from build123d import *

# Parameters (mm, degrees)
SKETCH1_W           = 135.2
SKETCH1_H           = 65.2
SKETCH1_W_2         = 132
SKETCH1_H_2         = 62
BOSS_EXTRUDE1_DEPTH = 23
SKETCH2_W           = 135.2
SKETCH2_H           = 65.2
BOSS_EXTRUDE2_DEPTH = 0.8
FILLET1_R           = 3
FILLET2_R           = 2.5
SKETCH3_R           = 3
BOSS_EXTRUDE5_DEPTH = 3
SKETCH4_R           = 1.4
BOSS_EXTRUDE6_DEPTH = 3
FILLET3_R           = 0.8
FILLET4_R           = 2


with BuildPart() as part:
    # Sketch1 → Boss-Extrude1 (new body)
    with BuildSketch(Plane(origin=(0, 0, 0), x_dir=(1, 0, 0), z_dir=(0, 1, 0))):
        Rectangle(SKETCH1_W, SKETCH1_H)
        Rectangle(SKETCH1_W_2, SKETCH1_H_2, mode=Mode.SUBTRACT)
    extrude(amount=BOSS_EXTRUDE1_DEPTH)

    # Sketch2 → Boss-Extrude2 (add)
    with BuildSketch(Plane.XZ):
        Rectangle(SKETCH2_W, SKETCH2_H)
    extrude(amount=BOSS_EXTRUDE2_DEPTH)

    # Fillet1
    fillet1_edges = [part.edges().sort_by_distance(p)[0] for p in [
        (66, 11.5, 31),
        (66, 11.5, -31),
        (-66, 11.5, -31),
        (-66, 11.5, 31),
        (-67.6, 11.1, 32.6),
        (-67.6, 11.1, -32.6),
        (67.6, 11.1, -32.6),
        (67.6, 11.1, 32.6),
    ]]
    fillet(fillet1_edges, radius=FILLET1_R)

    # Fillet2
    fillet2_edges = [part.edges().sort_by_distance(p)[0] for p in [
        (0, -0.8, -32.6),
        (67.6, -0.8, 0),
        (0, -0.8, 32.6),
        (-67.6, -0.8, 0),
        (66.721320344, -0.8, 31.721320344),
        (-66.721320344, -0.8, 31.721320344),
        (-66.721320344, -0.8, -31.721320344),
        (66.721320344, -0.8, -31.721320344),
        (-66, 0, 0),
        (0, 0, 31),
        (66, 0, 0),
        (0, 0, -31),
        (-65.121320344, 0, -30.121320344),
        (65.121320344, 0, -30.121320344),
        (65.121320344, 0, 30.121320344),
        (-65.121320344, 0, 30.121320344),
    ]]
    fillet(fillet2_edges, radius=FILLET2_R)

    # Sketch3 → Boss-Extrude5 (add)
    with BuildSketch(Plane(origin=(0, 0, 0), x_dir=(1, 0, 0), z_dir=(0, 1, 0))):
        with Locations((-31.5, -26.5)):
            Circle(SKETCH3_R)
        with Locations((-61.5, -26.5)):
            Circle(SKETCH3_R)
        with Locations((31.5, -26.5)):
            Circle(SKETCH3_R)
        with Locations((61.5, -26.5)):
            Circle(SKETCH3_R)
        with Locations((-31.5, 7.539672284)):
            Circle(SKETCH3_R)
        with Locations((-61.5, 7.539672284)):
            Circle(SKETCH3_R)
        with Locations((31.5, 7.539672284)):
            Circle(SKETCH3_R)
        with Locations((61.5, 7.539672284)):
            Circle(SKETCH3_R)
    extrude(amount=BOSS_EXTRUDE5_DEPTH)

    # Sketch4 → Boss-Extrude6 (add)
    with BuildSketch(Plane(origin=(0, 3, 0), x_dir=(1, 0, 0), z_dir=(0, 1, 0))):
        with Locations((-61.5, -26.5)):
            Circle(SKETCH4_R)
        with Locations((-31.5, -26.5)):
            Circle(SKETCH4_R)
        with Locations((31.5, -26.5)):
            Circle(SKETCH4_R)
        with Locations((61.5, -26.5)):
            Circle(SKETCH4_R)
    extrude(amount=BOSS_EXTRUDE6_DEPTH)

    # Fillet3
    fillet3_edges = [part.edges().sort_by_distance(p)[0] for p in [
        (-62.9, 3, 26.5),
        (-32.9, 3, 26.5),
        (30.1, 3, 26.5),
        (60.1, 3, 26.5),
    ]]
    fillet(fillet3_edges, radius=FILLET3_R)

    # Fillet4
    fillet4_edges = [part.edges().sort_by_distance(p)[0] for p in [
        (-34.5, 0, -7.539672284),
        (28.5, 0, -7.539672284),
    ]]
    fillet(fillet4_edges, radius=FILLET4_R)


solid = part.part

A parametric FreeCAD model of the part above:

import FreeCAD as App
import Part
import Sketcher
from FreeCAD import Vector


def edges_at(feature, points):
    """Names of the edges that pass closest to the given points."""
    edges = feature.Shape.Edges
    near = lambda p: min(range(len(edges)), key=lambda i: edges[i].distToShape(Part.Vertex(*p))[0])
    return sorted({f"Edge{near(p) + 1}" for p in points})

doc = App.newDocument("Part")
body = doc.addObject("PartDesign::Body", "Body")

# Sketch on XZ plane
sketch1 = doc.addObject("Sketcher::SketchObject", "Sketch")
body.addObject(sketch1)
sketch1.AttachmentSupport = (doc.XZ_Plane, [""])
sketch1.MapMode = "FlatFace"
sketch1.addGeometry([
    Part.LineSegment(Vector(-68, -33, 0), Vector(-68, 33, 0)),  # 0
    Part.LineSegment(Vector(-68, 33, 0), Vector(68, 33, 0)),  # 1
    Part.LineSegment(Vector(68, 33, 0), Vector(68, -33, 0)),  # 2
    Part.LineSegment(Vector(68, -33, 0), Vector(-68, -33, 0)),  # 3
    Part.LineSegment(Vector(66, 31, 0), Vector(-66, 31, 0)),  # 4
    Part.LineSegment(Vector(-66, 31, 0), Vector(-66, -31, 0)),  # 5
    Part.LineSegment(Vector(-66, -31, 0), Vector(66, -31, 0)),  # 6
    Part.LineSegment(Vector(66, -31, 0), Vector(66, 31, 0)),  # 7
], False)
sketch1.addConstraint([
    Sketcher.Constraint("Coincident", 0, 2, 1, 1),
    Sketcher.Constraint("Coincident", 1, 2, 2, 1),
    Sketcher.Constraint("Coincident", 2, 2, 3, 1),
    Sketcher.Constraint("Coincident", 3, 2, 0, 1),
    Sketcher.Constraint("Coincident", 4, 2, 5, 1),
    Sketcher.Constraint("Coincident", 5, 2, 6, 1),
    Sketcher.Constraint("Coincident", 6, 2, 7, 1),
    Sketcher.Constraint("Coincident", 7, 2, 4, 1),
    Sketcher.Constraint("Vertical", 0),
    Sketcher.Constraint("Horizontal", 1),
    Sketcher.Constraint("Vertical", 2),
    Sketcher.Constraint("Horizontal", 3),
    Sketcher.Constraint("Horizontal", 4),
    Sketcher.Constraint("Vertical", 5),
    Sketcher.Constraint("Horizontal", 6),
    Sketcher.Constraint("Vertical", 7),
    Sketcher.Constraint("Symmetric", 0, 2, 2, 2, -1, 1),
    Sketcher.Constraint("Symmetric", 4, 2, 6, 2, -1, 1),
    Sketcher.Constraint("DistanceX", 4, 2, 4, 1, 132.0),
    Sketcher.Constraint("DistanceY", 5, 2, 5, 1, 62.0),
    Sketcher.Constraint("DistanceX", 1, 1, 1, 2, 135.2),
    Sketcher.Constraint("DistanceY", 0, 1, 0, 2, 65.2),
])
pad1 = doc.addObject("PartDesign::Pad", "Pad")
body.addObject(pad1)
pad1.Profile = sketch1
pad1.Length = 23
pad1.Reversed = True

# Sketch on XZ plane
sketch2 = doc.addObject("Sketcher::SketchObject", "Sketch001")
body.addObject(sketch2)
sketch2.AttachmentSupport = (doc.XZ_Plane, [""])
sketch2.MapMode = "FlatFace"
sketch2.addGeometry([
    Part.LineSegment(Vector(-68, 33, 0), Vector(-68, -33, 0)),
    Part.LineSegment(Vector(-68, -33, 0), Vector(68, -33, 0)),
    Part.LineSegment(Vector(68, -33, 0), Vector(68, 33, 0)),
    Part.LineSegment(Vector(68, 33, 0), Vector(-68, 33, 0)),
], False)
sketch2.addConstraint([
    Sketcher.Constraint("Coincident", 0, 2, 1, 1),
    Sketcher.Constraint("Coincident", 1, 2, 2, 1),
    Sketcher.Constraint("Coincident", 2, 2, 3, 1),
    Sketcher.Constraint("Coincident", 3, 2, 0, 1),
    Sketcher.Constraint("Vertical", 0),
    Sketcher.Constraint("Horizontal", 1),
    Sketcher.Constraint("Vertical", 2),
    Sketcher.Constraint("Horizontal", 3),
    Sketcher.Constraint("Symmetric", 0, 2, 2, 2, -1, 1),
    Sketcher.Constraint("DistanceX", 1, 1, 1, 2, 135.2),
    Sketcher.Constraint("DistanceY", 0, 2, 0, 1, 65.2),
])
pad2 = doc.addObject("PartDesign::Pad", "Pad001")
body.addObject(pad2)
pad2.Profile = sketch2
pad2.Length = 0.8
doc.recompute()

fillet = doc.addObject("PartDesign::Fillet", "Fillet")
body.addObject(fillet)
fillet.Base = (pad2, edges_at(pad2, [
    (66, 11.5, 31),
    (66, 11.5, -31),
    (-66, 11.5, -31),
    (-66, 11.5, 31),
    (-67.6, 11.1, 32.6),
    (-67.6, 11.1, -32.6),
    (67.6, 11.1, -32.6),
    (67.6, 11.1, 32.6),
]))
fillet.Radius = 3
doc.recompute()

fillet2 = doc.addObject("PartDesign::Fillet", "Fillet001")
body.addObject(fillet2)
fillet2.Base = (fillet, edges_at(fillet, [
    (0, -0.8, -32.6),
    (67.6, -0.8, 0),
    (0, -0.8, 32.6),
    (-67.6, -0.8, 0),
    (66.721, -0.8, 31.721),
    (-66.721, -0.8, 31.721),
    (-66.721, -0.8, -31.721),
    (66.721, -0.8, -31.721),
    (-66, 0, 0),
    (0, 0, 31),
    (66, 0, 0),
    (0, 0, -31),
    (-65.121, 0, -30.121),
    (65.121, 0, -30.121),
    (65.121, 0, 30.121),
    (-65.121, 0, 30.121),
]))
fillet2.Radius = 2.5

# Sketch on XZ plane
sketch3 = doc.addObject("Sketcher::SketchObject", "Sketch002")
body.addObject(sketch3)
sketch3.AttachmentSupport = (doc.XZ_Plane, [""])
sketch3.MapMode = "FlatFace"
sketch3.addGeometry([
    Part.Circle(Vector(-31.5, 26.5, 0), Vector(0, 0, 1), 3),  # 0
    Part.Circle(Vector(-61.5, 26.5, 0), Vector(0, 0, 1), 3),  # 1
    Part.Circle(Vector(31.5, 26.5, 0), Vector(0, 0, 1), 3),  # 2
    Part.Circle(Vector(61.5, 26.5, 0), Vector(0, 0, 1), 3),  # 3
    Part.Circle(Vector(-31.5, -7.5, 0), Vector(0, 0, 1), 3),  # 4
    Part.Circle(Vector(-61.5, -7.5, 0), Vector(0, 0, 1), 3),  # 5
    Part.Circle(Vector(31.5, -7.5, 0), Vector(0, 0, 1), 3),  # 6
    Part.Circle(Vector(61.5, -7.5, 0), Vector(0, 0, 1), 3),  # 7
], False)
sketch3.addConstraint([
    Sketcher.Constraint("Equal", 0, 1),
    Sketcher.Constraint("Equal", 1, 2),
    Sketcher.Constraint("Equal", 2, 3),
    Sketcher.Constraint("Equal", 3, 4),
    Sketcher.Constraint("Equal", 4, 5),
    Sketcher.Constraint("Equal", 5, 6),
    Sketcher.Constraint("Equal", 6, 7),
    Sketcher.Constraint("Symmetric", 0, 3, 2, 3, -2),
    Sketcher.Constraint("Symmetric", 1, 3, 3, 3, -2),
    Sketcher.Constraint("Symmetric", 4, 3, 6, 3, -2),
    Sketcher.Constraint("Symmetric", 5, 3, 7, 3, -2),
    Sketcher.Constraint("Horizontal", 0, 3, 1, 3),
    Sketcher.Constraint("Horizontal", 4, 3, 5, 3),
    Sketcher.Constraint("Vertical", 0, 3, 4, 3),
    Sketcher.Constraint("Vertical", 1, 3, 5, 3),
    Sketcher.Constraint("Diameter", 0, 6.0),
    Sketcher.Constraint("DistanceX", 1, 3, 0, 3, 30.0),
    Sketcher.Constraint("DistanceX", 0, 3, 2, 3, 63.0),
    Sketcher.Constraint("DistanceY", -1, 1, 0, 3, 26.5),
    Sketcher.Constraint("DistanceY", 4, 3, -1, 1, 7.539672),
])
pad3 = doc.addObject("PartDesign::Pad", "Pad002")
body.addObject(pad3)
pad3.Profile = sketch3
pad3.Length = 3
pad3.Reversed = True

# Sketch on XZ plane
sketch4 = doc.addObject("Sketcher::SketchObject", "Sketch003")
body.addObject(sketch4)
sketch4.AttachmentSupport = (doc.XZ_Plane, [""])
sketch4.MapMode = "FlatFace"
sketch4.AttachmentOffset = App.Placement(Vector(0, 0, -3), App.Rotation())
sketch4.addGeometry([
    Part.Circle(Vector(-61.5, 26.5, 0), Vector(0, 0, 1), 1.4),
    Part.Circle(Vector(-31.5, 26.5, 0), Vector(0, 0, 1), 1.4),
    Part.Circle(Vector(31.5, 26.5, 0), Vector(0, 0, 1), 1.4),
    Part.Circle(Vector(61.5, 26.5, 0), Vector(0, 0, 1), 1.4),
], False)
sketch4.addConstraint([
    Sketcher.Constraint("Equal", 0, 1),
    Sketcher.Constraint("Equal", 1, 2),
    Sketcher.Constraint("Equal", 2, 3),
    Sketcher.Constraint("Symmetric", 1, 3, 2, 3, -2),
    Sketcher.Constraint("Symmetric", 0, 3, 3, 3, -2),
    Sketcher.Constraint("Horizontal", 0, 3, 1, 3),
    Sketcher.Constraint("Diameter", 0, 2.8),
    Sketcher.Constraint("DistanceX", 0, 3, 1, 3, 30.0),
    Sketcher.Constraint("DistanceX", 1, 3, 2, 3, 63.0),
    Sketcher.Constraint("DistanceY", -1, 1, 0, 3, 26.5),
])
pad4 = doc.addObject("PartDesign::Pad", "Pad003")
body.addObject(pad4)
pad4.Profile = sketch4
pad4.Length = 3
pad4.Reversed = True
doc.recompute()

fillet3 = doc.addObject("PartDesign::Fillet", "Fillet002")
body.addObject(fillet3)
fillet3.Base = (pad4, edges_at(pad4, [
    (-62.9, 3, 26.5),
    (-32.9, 3, 26.5),
    (30.1, 3, 26.5),
    (60.1, 3, 26.5),
]))
fillet3.Radius = 0.8
doc.recompute()

fillet4 = doc.addObject("PartDesign::Fillet", "Fillet003")
body.addObject(fillet4)
fillet4.Base = (fillet3, edges_at(fillet3, [(-34.5, 0, -7.54), (28.5, 0, -7.54)]))
fillet4.Radius = 2

doc.recompute()
